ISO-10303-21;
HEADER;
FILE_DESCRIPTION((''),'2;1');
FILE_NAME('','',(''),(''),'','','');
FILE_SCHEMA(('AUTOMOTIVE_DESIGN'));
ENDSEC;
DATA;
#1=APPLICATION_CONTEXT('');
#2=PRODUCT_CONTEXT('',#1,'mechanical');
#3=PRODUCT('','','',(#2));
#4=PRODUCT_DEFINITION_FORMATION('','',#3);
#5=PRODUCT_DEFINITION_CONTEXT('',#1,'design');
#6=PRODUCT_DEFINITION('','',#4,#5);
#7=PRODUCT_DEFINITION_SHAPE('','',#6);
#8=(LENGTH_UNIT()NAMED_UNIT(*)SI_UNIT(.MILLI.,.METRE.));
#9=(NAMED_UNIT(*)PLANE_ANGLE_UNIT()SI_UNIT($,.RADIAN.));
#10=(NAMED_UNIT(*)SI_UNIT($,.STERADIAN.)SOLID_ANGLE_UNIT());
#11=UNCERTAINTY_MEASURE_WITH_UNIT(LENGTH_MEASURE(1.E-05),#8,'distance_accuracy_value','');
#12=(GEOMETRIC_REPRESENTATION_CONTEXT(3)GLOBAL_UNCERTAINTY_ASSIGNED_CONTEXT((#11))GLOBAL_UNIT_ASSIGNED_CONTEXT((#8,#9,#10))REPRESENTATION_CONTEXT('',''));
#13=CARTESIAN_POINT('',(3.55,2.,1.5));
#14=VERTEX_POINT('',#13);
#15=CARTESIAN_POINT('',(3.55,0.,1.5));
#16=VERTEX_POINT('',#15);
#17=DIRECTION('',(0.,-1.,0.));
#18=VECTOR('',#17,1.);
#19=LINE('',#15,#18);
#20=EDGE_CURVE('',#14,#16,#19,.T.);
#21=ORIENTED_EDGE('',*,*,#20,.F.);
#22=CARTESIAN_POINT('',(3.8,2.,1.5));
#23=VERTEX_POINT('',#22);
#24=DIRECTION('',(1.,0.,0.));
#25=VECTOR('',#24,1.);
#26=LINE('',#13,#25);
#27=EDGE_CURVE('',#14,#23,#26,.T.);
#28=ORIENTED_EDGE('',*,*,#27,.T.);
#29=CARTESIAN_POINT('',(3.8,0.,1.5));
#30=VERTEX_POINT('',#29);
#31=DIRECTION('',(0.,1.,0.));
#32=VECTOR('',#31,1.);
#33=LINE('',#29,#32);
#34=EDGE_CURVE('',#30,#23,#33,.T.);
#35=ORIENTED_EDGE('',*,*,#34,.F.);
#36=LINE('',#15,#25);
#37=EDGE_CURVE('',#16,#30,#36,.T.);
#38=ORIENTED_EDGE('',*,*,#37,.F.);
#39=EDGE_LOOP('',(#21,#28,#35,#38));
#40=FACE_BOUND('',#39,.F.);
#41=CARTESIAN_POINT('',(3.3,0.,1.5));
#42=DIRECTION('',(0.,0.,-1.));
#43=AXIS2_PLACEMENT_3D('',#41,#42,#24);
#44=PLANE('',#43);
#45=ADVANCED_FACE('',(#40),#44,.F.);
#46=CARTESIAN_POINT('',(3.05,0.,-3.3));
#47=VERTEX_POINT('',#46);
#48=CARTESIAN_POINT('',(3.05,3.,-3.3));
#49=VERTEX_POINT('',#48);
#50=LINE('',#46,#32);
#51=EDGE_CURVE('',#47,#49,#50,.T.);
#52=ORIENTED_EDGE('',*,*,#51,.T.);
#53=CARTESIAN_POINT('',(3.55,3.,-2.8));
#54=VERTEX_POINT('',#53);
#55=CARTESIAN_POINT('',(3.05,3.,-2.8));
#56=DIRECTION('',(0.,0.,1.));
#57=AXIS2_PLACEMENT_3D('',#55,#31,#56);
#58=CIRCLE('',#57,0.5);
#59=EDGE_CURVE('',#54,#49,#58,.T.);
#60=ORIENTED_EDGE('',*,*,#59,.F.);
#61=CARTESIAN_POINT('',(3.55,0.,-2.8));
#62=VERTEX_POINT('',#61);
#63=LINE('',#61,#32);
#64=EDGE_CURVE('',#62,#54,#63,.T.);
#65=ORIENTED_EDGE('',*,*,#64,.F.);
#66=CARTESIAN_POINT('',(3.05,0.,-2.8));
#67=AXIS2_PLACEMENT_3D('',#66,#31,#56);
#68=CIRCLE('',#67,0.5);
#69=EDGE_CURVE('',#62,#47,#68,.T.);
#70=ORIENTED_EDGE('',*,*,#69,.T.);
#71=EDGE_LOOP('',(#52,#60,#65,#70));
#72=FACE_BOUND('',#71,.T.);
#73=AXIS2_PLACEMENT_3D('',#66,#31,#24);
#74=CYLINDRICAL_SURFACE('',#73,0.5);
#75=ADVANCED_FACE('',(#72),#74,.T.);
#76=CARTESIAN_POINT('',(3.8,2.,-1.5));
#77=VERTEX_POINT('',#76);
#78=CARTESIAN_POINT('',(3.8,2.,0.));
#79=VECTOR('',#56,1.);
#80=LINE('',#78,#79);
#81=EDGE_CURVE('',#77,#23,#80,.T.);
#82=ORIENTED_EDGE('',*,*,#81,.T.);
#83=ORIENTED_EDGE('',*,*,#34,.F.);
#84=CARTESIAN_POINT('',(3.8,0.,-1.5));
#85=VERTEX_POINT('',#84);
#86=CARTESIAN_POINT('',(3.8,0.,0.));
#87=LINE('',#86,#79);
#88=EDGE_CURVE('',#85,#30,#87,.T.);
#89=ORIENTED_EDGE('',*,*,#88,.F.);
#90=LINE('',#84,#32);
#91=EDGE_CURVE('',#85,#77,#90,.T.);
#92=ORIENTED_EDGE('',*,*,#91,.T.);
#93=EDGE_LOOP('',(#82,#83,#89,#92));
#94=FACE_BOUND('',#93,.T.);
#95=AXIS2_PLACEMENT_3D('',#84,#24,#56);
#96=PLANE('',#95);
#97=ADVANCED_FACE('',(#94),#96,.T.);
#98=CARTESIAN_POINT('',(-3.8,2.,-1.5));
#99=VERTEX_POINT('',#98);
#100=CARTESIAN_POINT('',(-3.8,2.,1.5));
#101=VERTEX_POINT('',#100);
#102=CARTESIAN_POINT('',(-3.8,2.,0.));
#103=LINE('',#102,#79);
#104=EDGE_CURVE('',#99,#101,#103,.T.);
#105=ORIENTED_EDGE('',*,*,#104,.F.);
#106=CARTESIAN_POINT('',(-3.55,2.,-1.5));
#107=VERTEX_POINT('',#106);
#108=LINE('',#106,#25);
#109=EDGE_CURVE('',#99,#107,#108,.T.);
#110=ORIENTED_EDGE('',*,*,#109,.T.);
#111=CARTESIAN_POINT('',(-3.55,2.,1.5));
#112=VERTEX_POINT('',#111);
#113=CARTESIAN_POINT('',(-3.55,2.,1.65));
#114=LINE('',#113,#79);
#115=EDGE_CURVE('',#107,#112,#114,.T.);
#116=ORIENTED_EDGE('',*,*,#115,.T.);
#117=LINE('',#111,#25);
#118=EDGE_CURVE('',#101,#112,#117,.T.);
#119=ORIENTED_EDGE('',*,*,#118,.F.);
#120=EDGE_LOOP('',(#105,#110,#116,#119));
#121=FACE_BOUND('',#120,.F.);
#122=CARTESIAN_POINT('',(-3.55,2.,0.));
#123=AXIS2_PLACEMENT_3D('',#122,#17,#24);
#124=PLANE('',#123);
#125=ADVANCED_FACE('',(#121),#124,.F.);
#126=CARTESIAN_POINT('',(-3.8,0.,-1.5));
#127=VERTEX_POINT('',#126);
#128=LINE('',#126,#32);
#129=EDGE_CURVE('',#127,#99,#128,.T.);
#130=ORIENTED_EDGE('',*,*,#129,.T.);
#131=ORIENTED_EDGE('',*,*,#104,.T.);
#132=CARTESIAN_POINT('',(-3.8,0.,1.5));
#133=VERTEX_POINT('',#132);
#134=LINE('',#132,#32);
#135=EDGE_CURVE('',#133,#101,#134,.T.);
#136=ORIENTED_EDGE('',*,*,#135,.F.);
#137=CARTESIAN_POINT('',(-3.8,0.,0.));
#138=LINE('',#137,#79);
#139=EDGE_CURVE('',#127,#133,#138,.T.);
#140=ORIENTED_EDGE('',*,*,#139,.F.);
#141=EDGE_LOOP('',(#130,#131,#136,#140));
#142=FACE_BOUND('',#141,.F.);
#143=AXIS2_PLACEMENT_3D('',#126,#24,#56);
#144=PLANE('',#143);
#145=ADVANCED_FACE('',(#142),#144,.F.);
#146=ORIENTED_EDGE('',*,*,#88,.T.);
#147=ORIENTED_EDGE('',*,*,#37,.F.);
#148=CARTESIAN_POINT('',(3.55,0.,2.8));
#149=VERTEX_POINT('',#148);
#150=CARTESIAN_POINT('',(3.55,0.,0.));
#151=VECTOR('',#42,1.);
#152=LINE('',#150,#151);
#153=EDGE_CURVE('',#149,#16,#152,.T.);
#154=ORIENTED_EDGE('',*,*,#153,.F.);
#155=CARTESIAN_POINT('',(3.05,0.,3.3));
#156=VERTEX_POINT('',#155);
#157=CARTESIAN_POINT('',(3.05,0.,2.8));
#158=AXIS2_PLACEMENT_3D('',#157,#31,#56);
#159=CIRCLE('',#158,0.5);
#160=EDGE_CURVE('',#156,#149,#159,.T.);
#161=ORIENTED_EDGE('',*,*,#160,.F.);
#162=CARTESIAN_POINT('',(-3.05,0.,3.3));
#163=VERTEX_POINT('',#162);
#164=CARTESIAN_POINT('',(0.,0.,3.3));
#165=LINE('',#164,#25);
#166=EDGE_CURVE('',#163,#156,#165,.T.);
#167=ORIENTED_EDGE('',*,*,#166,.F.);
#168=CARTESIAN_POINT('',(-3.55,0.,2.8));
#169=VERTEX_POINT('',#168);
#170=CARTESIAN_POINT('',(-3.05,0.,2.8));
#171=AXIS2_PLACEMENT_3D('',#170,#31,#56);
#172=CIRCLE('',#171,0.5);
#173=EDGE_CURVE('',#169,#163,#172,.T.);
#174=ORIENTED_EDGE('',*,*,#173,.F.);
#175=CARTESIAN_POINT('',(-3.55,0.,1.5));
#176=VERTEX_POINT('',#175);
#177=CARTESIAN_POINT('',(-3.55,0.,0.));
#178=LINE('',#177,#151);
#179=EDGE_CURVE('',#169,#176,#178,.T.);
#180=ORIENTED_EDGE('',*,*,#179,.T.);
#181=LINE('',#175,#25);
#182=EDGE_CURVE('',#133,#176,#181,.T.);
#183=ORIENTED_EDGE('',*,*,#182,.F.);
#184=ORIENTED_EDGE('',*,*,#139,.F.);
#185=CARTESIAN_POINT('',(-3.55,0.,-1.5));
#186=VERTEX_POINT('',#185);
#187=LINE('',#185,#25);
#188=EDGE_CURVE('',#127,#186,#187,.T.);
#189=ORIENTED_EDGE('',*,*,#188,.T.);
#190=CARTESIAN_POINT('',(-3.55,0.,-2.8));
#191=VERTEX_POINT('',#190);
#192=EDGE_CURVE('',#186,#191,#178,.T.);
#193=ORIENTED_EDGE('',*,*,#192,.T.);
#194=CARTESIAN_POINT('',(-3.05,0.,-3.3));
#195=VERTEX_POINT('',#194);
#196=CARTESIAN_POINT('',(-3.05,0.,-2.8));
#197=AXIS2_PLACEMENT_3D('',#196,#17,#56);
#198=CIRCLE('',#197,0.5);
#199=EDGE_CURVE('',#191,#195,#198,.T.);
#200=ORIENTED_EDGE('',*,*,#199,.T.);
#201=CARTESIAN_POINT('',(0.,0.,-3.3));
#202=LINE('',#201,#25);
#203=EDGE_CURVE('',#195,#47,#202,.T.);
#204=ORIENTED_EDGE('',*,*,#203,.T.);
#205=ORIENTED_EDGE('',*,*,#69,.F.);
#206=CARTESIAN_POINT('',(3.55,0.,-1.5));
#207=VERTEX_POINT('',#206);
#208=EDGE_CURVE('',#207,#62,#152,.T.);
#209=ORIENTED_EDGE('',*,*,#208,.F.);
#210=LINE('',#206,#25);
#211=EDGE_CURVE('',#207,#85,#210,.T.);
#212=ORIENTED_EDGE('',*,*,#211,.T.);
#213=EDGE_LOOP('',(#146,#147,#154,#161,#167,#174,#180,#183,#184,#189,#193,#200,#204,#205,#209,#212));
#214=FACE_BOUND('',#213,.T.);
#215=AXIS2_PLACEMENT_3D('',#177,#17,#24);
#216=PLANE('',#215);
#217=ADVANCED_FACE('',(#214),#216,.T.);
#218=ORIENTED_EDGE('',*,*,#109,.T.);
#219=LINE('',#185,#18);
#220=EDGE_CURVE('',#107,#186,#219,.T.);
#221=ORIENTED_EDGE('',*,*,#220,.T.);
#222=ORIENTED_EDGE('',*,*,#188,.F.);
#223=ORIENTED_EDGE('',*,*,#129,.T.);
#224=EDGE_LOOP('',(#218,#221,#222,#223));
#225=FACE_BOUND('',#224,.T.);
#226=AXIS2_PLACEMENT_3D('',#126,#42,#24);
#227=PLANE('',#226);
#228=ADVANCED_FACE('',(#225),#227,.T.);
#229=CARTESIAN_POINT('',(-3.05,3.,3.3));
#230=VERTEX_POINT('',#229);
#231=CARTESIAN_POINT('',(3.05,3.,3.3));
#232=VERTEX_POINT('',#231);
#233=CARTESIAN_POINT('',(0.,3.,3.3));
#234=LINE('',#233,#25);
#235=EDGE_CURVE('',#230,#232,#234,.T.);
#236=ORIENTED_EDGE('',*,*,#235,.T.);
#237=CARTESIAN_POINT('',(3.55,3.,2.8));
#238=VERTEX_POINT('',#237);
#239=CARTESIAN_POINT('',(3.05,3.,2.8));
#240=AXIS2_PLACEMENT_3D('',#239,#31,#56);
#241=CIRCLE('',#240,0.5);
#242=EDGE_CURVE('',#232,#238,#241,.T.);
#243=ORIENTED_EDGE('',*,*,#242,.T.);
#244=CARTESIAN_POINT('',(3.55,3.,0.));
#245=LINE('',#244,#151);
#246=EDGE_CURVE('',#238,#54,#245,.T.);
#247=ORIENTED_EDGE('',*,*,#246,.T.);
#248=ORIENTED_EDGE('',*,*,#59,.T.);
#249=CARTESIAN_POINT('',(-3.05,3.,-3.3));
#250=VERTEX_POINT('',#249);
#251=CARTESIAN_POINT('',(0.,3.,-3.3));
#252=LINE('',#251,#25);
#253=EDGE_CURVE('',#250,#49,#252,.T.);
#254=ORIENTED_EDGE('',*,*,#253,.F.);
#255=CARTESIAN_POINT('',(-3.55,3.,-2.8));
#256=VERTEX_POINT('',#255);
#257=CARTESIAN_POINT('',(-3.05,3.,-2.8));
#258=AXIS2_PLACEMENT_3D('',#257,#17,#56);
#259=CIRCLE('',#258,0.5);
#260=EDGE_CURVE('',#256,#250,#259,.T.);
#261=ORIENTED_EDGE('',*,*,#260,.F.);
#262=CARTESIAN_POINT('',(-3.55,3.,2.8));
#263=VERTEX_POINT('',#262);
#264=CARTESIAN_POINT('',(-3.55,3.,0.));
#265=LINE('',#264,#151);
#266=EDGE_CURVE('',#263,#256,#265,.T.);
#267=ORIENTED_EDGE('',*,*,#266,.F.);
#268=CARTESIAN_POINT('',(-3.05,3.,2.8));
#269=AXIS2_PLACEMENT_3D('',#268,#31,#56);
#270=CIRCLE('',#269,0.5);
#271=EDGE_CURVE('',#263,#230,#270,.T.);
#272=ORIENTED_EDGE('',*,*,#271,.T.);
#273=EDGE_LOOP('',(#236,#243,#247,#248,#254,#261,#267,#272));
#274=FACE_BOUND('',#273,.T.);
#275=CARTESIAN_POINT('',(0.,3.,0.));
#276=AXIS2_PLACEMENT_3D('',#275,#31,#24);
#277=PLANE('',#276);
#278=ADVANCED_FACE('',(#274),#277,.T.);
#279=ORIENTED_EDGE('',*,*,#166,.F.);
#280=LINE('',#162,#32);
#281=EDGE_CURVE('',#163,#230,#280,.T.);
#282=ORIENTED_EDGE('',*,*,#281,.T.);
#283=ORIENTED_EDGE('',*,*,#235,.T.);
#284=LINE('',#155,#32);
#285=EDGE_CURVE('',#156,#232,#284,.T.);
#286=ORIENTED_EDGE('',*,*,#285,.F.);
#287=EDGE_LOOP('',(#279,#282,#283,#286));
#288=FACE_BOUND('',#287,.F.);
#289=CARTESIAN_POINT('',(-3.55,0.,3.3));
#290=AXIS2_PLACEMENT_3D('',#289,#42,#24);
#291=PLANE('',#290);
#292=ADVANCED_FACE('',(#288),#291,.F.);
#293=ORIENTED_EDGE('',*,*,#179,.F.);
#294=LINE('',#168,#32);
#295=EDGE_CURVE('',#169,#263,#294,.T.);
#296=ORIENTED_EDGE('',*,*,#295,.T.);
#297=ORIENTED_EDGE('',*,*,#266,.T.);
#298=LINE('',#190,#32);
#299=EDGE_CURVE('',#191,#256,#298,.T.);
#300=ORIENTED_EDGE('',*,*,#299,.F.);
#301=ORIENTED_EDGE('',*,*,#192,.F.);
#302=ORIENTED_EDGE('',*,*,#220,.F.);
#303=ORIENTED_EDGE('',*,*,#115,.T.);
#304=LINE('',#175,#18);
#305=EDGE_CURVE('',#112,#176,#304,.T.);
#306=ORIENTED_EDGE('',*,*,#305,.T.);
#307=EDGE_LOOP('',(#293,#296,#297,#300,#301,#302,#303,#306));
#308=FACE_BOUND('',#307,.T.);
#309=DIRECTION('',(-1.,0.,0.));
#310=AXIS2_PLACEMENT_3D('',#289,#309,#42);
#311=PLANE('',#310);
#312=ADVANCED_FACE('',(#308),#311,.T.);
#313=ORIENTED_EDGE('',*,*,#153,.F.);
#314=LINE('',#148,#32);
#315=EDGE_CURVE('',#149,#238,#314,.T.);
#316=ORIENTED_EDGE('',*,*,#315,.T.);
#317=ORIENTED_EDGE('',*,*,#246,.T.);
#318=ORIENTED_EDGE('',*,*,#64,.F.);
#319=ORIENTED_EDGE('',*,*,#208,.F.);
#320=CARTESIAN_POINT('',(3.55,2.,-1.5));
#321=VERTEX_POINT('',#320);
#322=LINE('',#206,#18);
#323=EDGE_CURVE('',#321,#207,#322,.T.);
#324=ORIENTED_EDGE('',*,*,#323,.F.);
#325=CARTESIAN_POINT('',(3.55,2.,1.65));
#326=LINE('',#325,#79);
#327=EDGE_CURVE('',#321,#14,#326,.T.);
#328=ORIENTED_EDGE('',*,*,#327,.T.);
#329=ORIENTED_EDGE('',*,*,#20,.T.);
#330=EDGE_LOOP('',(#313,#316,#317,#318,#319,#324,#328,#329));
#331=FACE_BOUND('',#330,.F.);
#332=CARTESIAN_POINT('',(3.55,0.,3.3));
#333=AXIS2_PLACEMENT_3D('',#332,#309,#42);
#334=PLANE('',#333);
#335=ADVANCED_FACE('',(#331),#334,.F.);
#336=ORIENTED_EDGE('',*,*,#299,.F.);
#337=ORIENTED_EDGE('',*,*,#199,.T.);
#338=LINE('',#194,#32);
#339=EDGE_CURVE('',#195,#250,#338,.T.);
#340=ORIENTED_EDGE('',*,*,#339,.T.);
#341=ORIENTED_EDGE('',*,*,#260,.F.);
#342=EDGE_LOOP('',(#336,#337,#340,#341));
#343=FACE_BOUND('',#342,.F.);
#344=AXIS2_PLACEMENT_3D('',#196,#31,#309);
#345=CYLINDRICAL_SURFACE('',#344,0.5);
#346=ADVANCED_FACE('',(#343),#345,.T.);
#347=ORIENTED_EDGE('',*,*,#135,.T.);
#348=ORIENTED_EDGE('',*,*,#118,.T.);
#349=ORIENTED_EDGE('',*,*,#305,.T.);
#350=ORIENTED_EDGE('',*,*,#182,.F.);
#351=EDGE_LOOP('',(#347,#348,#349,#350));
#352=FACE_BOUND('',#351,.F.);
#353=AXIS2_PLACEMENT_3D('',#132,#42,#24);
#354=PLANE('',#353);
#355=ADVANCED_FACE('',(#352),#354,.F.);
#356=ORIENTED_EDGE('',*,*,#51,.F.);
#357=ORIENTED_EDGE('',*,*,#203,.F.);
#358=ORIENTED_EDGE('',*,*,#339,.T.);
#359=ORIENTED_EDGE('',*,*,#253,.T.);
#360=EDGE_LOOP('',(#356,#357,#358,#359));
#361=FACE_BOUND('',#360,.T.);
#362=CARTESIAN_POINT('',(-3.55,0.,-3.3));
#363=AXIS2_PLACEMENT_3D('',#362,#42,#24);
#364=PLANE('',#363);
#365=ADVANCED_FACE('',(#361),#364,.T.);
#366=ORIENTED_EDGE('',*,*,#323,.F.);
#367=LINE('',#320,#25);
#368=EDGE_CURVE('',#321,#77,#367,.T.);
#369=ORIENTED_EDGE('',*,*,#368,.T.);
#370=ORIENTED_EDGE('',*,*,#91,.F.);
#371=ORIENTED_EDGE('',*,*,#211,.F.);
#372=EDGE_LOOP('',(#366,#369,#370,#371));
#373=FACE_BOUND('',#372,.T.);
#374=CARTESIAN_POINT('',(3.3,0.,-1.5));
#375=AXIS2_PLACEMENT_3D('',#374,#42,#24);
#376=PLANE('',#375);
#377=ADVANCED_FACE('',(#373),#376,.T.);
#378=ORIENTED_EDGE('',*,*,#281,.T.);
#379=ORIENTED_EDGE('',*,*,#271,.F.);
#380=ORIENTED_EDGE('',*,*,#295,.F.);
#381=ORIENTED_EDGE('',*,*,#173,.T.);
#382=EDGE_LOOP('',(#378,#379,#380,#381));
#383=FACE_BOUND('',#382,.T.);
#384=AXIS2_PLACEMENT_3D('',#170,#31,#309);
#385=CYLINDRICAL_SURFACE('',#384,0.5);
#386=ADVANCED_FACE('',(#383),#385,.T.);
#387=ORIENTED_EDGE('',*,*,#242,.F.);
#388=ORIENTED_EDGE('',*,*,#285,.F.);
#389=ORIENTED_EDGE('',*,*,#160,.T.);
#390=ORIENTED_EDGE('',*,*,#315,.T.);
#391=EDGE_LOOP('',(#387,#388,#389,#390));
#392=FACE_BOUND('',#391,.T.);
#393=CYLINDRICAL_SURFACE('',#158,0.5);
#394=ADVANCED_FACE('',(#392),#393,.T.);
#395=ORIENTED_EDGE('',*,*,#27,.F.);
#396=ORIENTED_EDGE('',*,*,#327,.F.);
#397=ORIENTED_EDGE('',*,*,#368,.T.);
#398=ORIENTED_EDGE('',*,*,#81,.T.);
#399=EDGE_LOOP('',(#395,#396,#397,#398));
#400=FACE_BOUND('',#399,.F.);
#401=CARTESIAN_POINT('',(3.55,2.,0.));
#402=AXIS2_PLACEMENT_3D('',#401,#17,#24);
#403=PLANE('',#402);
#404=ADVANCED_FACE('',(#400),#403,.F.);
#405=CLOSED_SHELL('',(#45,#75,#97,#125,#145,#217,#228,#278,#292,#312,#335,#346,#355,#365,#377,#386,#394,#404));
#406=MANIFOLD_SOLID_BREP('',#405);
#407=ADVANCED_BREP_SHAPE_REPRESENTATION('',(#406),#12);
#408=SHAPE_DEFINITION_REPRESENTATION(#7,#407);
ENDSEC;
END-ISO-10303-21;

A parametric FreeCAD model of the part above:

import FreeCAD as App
import Part
import Sketcher
from FreeCAD import Vector


def edges_at(feature, points):
    """Names of the edges that pass closest to the given points."""
    edges = feature.Shape.Edges
    near = lambda p: min(range(len(edges)), key=lambda i: edges[i].distToShape(Part.Vertex(*p))[0])
    return sorted({f"Edge{near(p) + 1}" for p in points})

doc = App.newDocument("Part")
params = doc.addObject("Spreadsheet::Sheet", "Params")
for row, (alias, value) in enumerate([
    ("sketch1_width", "7.1 mm"),
    ("sketch1_height", "6.6 mm"),
    ("pad1_length", "3 mm"),
    ("fillet_radius", "0.5 mm"),
    ("sketch2_height", "3 mm"),
    ("sketch2_width", "0.5 mm"),
    ("pad2_length", "2 mm"),
], start=1):
    params.set(f"A{row}", alias)
    params.set(f"B{row}", "=" + value)
    params.setAlias(f"B{row}", alias)

body = doc.addObject("PartDesign::Body", "Body")

# Sketch on XZ plane
sketch1 = body.newObject("Sketcher::SketchObject", "Sketch")
sketch1.AttachmentSupport = (doc.getObject("XZ_Plane"), [""])
sketch1.MapMode = "FlatFace"
sketch1.addGeometry([
    Part.LineSegment(Vector(-3.55, -3.3, 0), Vector(-3.55, 3.3, 0)),
    Part.LineSegment(Vector(-3.55, 3.3, 0), Vector(3.55, 3.3, 0)),
    Part.LineSegment(Vector(3.55, 3.3, 0), Vector(3.55, -3.3, 0)),
    Part.LineSegment(Vector(3.55, -3.3, 0), Vector(-3.55, -3.3, 0)),
], False)
sketch1.addConstraint([
    Sketcher.Constraint("Coincident", 0, 2, 1, 1),
    Sketcher.Constraint("Coincident", 1, 2, 2, 1),
    Sketcher.Constraint("Coincident", 2, 2, 3, 1),
    Sketcher.Constraint("Coincident", 3, 2, 0, 1),
    Sketcher.Constraint("Vertical", 0),
    Sketcher.Constraint("Horizontal", 1),
    Sketcher.Constraint("Vertical", 2),
    Sketcher.Constraint("Horizontal", 3),
    Sketcher.Constraint("Symmetric", 0, 2, 2, 2, -1, 1),
    Sketcher.Constraint("DistanceX", 1, 1, 1, 2, 7.1),
    Sketcher.Constraint("DistanceY", 0, 1, 0, 2, 6.6),
])
sketch1.setExpression("Constraints[9]", "Params.sketch1_width")
sketch1.setExpression("Constraints[10]", "Params.sketch1_height")
pad1 = body.newObject("PartDesign::Pad", "Pad")
pad1.Profile = sketch1
pad1.setExpression("Length", "Params.pad1_length")
pad1.Reversed = True
doc.recompute()

fillet = body.newObject("PartDesign::Fillet", "Fillet")
fillet.Base = (pad1, edges_at(pad1, [
    (3.55, 1.5, 3.3),
    (-3.55, 1.5, 3.3),
    (-3.55, 1.5, -3.3),
    (3.55, 1.5, -3.3),
]))
fillet.setExpression("Radius", "Params.fillet_radius")

# Sketch on XZ plane
sketch2 = body.newObject("Sketcher::SketchObject", "Sketch001")
sketch2.AttachmentSupport = (doc.getObject("XZ_Plane"), [""])
sketch2.MapMode = "FlatFace"
sketch2.addGeometry([
    Part.LineSegment(Vector(-3.8, 1.5, 0), Vector(-3.8, -1.5, 0)),  # 0
    Part.LineSegment(Vector(-3.8, -1.5, 0), Vector(-3.3, -1.5, 0)),  # 1
    Part.LineSegment(Vector(-3.3, -1.5, 0), Vector(-3.3, 1.5, 0)),  # 2
    Part.LineSegment(Vector(-3.3, 1.5, 0), Vector(-3.8, 1.5, 0)),  # 3
    Part.LineSegment(Vector(3.3, 1.5, 0), Vector(3.3, -1.5, 0)),  # 4
    Part.LineSegment(Vector(3.3, -1.5, 0), Vector(3.8, -1.5, 0)),  # 5
    Part.LineSegment(Vector(3.8, -1.5, 0), Vector(3.8, 1.5, 0)),  # 6
    Part.LineSegment(Vector(3.8, 1.5, 0), Vector(3.3, 1.5, 0)),  # 7
], False)
sketch2.addConstraint([
    Sketcher.Constraint("Coincident", 0, 2, 1, 1),
    Sketcher.Constraint("Coincident", 1, 2, 2, 1),
    Sketcher.Constraint("Coincident", 2, 2, 3, 1),
    Sketcher.Constraint("Coincident", 3, 2, 0, 1),
    Sketcher.Constraint("Coincident", 4, 2, 5, 1),
    Sketcher.Constraint("Coincident", 5, 2, 6, 1),
    Sketcher.Constraint("Coincident", 6, 2, 7, 1),
    Sketcher.Constraint("Coincident", 7, 2, 4, 1),
    Sketcher.Constraint("Vertical", 0),
    Sketcher.Constraint("Horizontal", 1),
    Sketcher.Constraint("Vertical", 2),
    Sketcher.Constraint("Horizontal", 3),
    Sketcher.Constraint("Vertical", 4),
    Sketcher.Constraint("Horizontal", 5),
    Sketcher.Constraint("Vertical", 6),
    Sketcher.Constraint("Horizontal", 7),
    Sketcher.Constraint("Symmetric", 2, 2, 4, 2, -1, 1),
    Sketcher.Constraint("Symmetric", 0, 2, 6, 2, -1, 1),
    Sketcher.Constraint("Horizontal", 1, 2, 4, 2),
    Sketcher.Constraint("DistanceY", 0, 2, 0, 1, 3.0),
    Sketcher.Constraint("DistanceX", 1, 1, 1, 2, 0.5),
    Sketcher.Constraint("DistanceX", 0, 2, -1, 1, 3.8),
])
sketch2.setExpression("Constraints[19]", "Params.sketch2_height")
sketch2.setExpression("Constraints[20]", "Params.sketch2_width")
pad2 = body.newObject("PartDesign::Pad", "Pad001")
pad2.Profile = sketch2
pad2.setExpression("Length", "Params.pad2_length")
pad2.Reversed = True

doc.recompute()
